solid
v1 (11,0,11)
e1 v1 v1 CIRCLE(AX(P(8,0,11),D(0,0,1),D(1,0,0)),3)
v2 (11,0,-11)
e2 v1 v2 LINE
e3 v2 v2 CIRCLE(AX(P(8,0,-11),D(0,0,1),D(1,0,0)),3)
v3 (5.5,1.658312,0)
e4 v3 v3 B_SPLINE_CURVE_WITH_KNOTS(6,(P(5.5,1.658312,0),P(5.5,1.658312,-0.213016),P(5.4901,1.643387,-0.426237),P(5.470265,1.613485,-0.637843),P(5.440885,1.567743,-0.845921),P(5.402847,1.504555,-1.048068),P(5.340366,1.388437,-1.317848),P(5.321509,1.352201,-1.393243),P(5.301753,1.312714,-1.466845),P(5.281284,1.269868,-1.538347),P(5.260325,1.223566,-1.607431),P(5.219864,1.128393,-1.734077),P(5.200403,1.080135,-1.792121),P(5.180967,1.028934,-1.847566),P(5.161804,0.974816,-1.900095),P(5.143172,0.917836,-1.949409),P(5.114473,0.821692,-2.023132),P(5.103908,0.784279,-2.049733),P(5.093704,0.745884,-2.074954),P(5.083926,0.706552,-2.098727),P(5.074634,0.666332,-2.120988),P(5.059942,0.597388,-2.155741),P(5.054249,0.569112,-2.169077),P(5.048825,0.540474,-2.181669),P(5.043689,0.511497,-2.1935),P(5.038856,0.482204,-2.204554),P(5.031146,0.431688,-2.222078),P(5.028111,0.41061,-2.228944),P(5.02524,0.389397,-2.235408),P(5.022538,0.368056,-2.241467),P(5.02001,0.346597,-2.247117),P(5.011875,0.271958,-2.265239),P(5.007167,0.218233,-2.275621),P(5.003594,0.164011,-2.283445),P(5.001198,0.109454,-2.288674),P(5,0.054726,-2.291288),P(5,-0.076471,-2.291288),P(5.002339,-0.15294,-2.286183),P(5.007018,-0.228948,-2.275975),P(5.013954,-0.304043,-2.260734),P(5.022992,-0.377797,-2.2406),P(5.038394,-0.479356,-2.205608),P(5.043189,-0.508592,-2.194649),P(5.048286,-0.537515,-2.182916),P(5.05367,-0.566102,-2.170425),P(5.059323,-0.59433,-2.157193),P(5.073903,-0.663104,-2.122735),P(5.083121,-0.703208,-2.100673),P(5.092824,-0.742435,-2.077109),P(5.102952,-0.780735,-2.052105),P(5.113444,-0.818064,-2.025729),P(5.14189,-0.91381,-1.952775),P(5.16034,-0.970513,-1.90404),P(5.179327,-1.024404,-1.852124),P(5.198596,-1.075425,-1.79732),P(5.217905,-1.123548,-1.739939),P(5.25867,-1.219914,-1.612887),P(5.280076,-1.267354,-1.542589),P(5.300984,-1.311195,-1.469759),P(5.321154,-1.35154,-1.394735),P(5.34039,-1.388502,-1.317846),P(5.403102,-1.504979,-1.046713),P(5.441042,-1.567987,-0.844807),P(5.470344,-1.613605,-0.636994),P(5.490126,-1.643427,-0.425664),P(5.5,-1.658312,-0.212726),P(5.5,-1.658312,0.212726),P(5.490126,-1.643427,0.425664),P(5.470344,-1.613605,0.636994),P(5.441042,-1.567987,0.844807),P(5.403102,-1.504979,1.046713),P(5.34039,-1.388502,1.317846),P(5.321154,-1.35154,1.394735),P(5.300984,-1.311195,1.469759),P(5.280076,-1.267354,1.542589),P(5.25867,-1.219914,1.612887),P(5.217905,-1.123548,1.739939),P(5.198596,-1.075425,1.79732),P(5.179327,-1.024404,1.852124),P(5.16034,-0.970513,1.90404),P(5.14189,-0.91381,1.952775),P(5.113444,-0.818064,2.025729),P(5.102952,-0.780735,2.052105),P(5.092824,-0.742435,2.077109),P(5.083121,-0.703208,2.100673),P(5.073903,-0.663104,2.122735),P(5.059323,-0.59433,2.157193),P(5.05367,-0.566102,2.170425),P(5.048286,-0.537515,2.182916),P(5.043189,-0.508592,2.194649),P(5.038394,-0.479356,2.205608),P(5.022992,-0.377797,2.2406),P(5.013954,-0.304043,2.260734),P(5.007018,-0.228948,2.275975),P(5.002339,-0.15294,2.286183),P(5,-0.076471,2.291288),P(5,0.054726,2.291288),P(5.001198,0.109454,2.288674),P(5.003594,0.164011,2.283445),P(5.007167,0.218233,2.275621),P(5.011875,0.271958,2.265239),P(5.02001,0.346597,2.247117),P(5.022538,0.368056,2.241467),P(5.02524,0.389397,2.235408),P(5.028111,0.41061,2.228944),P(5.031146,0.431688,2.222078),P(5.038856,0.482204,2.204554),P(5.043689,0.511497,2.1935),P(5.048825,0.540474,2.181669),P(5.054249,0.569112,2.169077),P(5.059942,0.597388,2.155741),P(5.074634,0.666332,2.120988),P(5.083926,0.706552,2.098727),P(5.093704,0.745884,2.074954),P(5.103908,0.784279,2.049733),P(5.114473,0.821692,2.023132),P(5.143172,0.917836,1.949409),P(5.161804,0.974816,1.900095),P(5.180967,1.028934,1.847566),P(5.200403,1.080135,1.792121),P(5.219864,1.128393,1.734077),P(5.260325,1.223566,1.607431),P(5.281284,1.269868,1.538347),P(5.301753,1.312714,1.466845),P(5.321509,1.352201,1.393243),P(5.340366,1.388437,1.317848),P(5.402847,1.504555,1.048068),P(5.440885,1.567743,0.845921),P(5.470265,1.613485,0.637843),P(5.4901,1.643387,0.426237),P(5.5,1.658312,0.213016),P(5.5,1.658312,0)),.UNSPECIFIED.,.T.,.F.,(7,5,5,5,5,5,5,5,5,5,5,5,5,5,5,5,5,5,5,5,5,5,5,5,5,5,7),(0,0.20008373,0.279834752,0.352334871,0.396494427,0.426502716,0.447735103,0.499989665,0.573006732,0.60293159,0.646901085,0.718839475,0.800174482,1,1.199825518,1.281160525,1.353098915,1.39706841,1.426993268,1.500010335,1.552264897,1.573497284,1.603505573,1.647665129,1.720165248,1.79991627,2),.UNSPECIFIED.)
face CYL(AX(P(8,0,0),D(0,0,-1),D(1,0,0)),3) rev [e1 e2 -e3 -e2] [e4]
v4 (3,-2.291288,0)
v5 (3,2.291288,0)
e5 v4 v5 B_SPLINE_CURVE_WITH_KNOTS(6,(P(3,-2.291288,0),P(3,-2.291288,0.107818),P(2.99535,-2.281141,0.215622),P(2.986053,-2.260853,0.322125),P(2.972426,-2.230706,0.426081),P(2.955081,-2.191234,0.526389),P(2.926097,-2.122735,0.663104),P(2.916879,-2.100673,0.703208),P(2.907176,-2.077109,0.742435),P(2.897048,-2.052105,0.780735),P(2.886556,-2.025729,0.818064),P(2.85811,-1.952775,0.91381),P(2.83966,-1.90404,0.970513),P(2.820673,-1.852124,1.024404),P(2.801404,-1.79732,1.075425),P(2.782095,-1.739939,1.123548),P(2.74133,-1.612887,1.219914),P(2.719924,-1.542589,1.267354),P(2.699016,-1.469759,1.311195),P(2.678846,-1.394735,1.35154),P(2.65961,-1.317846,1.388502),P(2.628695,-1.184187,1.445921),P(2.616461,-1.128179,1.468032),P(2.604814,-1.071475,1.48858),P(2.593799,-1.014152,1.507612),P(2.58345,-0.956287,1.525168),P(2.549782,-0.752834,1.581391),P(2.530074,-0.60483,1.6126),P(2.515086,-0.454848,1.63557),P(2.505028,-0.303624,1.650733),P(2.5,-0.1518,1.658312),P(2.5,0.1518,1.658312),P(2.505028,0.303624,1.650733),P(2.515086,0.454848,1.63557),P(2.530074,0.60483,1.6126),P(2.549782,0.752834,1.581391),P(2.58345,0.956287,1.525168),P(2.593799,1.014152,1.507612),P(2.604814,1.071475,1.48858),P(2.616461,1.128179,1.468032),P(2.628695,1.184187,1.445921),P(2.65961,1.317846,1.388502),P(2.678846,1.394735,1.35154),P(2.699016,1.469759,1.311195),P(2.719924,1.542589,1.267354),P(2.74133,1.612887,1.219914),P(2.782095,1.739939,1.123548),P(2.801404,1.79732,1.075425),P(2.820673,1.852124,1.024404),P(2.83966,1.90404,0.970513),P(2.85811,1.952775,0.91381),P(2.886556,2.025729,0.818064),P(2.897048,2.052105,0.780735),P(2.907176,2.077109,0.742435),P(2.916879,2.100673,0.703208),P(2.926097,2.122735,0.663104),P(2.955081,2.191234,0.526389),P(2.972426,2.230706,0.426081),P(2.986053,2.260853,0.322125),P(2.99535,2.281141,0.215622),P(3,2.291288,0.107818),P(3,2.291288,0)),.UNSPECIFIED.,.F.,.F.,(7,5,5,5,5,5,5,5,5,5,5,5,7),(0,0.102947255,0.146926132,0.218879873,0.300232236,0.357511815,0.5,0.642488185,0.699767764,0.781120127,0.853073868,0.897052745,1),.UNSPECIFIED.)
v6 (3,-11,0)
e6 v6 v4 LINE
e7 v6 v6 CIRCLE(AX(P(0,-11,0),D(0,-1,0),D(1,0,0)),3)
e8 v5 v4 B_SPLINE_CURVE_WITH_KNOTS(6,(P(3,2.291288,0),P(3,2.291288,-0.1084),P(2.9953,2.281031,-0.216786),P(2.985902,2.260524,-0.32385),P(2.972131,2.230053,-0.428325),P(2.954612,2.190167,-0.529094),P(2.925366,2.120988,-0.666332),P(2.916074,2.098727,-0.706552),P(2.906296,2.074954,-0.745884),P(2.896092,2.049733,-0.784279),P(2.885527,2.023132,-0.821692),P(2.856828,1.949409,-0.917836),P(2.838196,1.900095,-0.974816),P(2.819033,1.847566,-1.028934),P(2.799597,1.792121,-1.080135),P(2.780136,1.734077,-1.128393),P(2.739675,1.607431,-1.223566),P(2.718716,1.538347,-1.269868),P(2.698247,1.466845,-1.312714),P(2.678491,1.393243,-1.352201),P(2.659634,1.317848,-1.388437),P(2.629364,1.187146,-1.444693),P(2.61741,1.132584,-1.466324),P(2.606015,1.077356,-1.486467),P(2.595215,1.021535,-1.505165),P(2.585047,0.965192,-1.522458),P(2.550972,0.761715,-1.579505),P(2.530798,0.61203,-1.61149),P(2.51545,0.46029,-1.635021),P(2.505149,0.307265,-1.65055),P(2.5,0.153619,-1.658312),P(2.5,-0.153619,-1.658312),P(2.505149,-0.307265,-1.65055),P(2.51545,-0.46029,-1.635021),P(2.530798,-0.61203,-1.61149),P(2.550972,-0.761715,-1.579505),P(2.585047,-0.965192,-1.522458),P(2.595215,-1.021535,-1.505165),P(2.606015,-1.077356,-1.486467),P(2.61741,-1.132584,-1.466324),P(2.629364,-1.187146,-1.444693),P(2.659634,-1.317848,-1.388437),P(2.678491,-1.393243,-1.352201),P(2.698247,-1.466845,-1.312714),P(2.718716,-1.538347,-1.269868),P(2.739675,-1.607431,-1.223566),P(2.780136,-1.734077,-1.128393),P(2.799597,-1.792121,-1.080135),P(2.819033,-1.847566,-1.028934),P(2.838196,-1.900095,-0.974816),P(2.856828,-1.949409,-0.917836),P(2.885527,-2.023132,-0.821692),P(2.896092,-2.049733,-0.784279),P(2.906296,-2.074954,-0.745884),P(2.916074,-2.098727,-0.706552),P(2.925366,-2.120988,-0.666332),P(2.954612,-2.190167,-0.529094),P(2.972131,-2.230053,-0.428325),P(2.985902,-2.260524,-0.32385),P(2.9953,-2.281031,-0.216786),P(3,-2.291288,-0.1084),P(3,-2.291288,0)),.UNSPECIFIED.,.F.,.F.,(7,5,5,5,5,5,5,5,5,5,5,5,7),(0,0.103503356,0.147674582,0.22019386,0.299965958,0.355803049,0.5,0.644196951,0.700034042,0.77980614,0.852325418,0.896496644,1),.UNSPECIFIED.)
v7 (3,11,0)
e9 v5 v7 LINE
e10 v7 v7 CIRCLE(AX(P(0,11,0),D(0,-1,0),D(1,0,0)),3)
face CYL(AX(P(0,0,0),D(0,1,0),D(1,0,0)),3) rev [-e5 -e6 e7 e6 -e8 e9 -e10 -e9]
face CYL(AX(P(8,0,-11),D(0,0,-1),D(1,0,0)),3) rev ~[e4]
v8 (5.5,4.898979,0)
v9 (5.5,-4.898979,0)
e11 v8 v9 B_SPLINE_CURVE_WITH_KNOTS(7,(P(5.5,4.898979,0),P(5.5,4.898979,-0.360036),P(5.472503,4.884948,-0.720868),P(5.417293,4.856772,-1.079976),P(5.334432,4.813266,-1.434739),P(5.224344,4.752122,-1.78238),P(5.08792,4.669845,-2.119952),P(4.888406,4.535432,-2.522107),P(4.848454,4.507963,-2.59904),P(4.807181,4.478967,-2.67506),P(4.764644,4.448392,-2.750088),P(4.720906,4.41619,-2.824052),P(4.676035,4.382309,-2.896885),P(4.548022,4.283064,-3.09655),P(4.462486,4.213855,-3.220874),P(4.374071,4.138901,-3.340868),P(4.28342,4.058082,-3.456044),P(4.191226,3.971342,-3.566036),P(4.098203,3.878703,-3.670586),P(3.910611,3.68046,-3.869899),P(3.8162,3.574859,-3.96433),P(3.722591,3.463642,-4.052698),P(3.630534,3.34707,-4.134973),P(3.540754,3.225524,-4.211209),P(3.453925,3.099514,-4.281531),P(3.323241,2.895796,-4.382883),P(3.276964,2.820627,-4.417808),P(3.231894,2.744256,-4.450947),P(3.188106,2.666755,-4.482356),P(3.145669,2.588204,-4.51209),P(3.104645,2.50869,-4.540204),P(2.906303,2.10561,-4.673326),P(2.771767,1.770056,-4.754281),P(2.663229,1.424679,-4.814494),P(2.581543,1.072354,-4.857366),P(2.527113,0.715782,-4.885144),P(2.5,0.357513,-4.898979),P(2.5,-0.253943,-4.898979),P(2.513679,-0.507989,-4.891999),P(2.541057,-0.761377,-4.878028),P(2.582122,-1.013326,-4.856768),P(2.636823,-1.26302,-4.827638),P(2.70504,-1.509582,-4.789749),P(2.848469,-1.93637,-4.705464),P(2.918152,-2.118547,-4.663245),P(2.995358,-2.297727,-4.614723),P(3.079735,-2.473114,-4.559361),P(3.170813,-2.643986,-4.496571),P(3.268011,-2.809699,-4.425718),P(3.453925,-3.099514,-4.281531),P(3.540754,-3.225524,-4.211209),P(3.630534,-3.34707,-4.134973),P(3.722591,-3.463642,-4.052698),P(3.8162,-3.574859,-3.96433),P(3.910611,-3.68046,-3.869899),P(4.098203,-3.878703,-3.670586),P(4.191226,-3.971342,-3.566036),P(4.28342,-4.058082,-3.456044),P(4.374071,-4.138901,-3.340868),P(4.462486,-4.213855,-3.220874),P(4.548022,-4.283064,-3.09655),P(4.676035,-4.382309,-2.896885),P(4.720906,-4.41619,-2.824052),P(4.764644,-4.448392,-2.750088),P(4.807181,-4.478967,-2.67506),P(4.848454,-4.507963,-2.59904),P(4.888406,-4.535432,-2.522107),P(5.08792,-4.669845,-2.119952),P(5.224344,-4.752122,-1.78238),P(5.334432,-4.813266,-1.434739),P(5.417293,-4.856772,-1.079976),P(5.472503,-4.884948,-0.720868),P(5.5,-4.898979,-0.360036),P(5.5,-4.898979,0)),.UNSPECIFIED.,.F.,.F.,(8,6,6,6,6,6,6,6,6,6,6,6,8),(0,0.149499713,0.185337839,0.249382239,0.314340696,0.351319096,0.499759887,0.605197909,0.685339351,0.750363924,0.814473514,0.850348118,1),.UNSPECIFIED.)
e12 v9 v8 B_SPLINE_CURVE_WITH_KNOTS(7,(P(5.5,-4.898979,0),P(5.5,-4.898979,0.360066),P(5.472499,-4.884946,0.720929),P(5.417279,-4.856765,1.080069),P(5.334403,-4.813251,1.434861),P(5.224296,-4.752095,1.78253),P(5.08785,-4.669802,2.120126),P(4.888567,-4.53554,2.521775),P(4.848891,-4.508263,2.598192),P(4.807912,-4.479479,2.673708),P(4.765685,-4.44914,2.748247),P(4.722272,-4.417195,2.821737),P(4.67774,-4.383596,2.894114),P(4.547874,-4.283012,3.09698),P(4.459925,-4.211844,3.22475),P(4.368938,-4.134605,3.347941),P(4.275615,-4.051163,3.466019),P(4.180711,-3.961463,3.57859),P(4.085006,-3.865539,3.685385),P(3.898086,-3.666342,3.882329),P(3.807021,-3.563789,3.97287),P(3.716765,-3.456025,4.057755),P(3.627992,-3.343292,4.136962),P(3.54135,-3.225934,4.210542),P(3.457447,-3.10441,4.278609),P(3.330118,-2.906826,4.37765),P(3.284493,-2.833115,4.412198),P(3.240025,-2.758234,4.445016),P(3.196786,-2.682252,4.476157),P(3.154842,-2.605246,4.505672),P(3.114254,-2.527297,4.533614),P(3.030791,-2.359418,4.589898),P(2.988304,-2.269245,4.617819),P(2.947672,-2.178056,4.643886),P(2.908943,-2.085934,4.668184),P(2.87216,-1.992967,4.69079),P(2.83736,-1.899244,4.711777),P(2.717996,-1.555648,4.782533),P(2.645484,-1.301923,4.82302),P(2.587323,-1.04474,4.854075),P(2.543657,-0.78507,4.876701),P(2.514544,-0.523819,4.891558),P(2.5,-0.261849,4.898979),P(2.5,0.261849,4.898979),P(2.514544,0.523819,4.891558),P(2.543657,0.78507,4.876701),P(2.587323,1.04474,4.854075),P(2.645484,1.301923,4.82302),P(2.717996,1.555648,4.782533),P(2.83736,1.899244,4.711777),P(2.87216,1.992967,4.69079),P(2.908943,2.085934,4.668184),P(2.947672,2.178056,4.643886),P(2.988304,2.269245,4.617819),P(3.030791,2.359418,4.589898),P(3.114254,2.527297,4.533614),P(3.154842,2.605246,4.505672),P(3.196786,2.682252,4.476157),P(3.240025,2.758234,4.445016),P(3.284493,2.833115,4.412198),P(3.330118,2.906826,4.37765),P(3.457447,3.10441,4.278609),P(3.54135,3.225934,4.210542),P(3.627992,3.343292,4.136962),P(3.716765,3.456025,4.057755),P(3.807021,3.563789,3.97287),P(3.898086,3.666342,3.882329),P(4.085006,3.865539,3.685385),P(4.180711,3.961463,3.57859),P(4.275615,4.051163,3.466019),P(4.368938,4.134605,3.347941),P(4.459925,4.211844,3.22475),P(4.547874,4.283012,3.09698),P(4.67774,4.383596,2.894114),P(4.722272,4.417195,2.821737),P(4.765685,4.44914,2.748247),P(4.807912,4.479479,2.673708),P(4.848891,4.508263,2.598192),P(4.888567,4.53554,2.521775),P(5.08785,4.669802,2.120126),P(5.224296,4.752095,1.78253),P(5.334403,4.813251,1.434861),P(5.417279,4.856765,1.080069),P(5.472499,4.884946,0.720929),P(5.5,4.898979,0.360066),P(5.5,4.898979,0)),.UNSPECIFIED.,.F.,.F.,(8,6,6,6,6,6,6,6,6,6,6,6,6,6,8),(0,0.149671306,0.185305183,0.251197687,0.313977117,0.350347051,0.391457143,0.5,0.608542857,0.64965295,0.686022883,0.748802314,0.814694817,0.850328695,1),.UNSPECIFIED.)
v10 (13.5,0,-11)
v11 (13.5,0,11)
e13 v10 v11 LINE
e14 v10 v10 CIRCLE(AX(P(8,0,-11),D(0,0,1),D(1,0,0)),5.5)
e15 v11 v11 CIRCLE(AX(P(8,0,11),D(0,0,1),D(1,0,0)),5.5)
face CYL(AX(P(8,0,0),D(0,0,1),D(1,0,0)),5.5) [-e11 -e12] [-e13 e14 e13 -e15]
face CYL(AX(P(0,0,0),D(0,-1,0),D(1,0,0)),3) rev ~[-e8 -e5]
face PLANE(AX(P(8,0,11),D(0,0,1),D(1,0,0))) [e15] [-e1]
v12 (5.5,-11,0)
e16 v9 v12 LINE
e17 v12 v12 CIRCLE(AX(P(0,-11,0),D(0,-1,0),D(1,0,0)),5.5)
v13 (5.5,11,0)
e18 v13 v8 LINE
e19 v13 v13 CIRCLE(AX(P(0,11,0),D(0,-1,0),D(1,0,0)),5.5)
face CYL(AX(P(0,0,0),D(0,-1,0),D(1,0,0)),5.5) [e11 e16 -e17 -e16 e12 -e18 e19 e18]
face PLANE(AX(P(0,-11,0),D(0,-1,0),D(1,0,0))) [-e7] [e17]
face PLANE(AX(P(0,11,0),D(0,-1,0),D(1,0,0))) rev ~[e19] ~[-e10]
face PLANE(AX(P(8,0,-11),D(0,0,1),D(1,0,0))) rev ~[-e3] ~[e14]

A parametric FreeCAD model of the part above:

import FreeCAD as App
import Part
import Sketcher
from FreeCAD import Vector

doc = App.newDocument("Part")
body = doc.addObject("PartDesign::Body", "Body")

# Sketch on XZ plane
sketch1 = body.newObject("Sketcher::SketchObject", "Sketch")
sketch1.AttachmentSupport = (doc.getObject("XZ_Plane"), [""])
sketch1.MapMode = "FlatFace"
sketch1.addGeometry([
    Part.Circle(Vector(0, 0, 0), Vector(0, 0, 1), 5.5),
    Part.Circle(Vector(0, 0, 0), Vector(0, 0, 1), 3),
], False)
sketch1.addConstraint([
    Sketcher.Constraint("Coincident", 0, 3, -1, 1),
    Sketcher.Constraint("Coincident", 1, 3, -1, 1),
    Sketcher.Constraint("Diameter", 0, 11.0),
    Sketcher.Constraint("Diameter", 1, 6.0),
])
pad1 = body.newObject("PartDesign::Pad", "Pad")
pad1.Profile = sketch1
pad1.Length = 22
pad1.Midplane = True

# Sketch on XY plane
sketch2 = body.newObject("Sketcher::SketchObject", "Sketch001")
sketch2.AttachmentSupport = (doc.getObject("XY_Plane"), [""])
sketch2.MapMode = "FlatFace"
sketch2.addGeometry([
    Part.Circle(Vector(8, 0, 0), Vector(0, 0, 1), 5.5),
    Part.Circle(Vector(8, 0, 0), Vector(0, 0, 1), 3),
], False)
sketch2.addConstraint([
    Sketcher.Constraint("Coincident", 1, 3, 0, 3),
    Sketcher.Constraint("PointOnObject", 0, 3, -1),
    Sketcher.Constraint("Diameter", 0, 11.0),
    Sketcher.Constraint("Diameter", 1, 6.0),
    Sketcher.Constraint("DistanceX", -1, 1, 0, 3, 8.0),
])
pad2 = body.newObject("PartDesign::Pad", "Pad001")
pad2.Profile = sketch2
pad2.Length = 22
pad2.Midplane = True

# Sketch on XZ plane
sketch3 = body.newObject("Sketcher::SketchObject", "Sketch002")
sketch3.AttachmentSupport = (doc.getObject("XZ_Plane"), [""])
sketch3.MapMode = "FlatFace"
sketch3.addGeometry(Part.Circle(Vector(0, 0, 0), Vector(0, 0, 1), 3), False)
sketch3.addConstraint([
    Sketcher.Constraint("Coincident", 0, 3, -1, 1),
    Sketcher.Constraint("Diameter", 0, 6.0),
])
pocket1 = body.newObject("PartDesign::Pocket", "Pocket")
pocket1.Profile = sketch3
pocket1.Length = 25
pocket1.Midplane = True

# Sketch on XY plane
sketch4 = body.newObject("Sketcher::SketchObject", "Sketch003")
sketch4.AttachmentSupport = (doc.getObject("XY_Plane"), [""])
sketch4.MapMode = "FlatFace"
sketch4.AttachmentOffset = App.Placement(Vector(0, 0, -11), App.Rotation())
sketch4.addGeometry(Part.Circle(Vector(8, 0, 0), Vector(0, 0, 1), 3), False)
sketch4.addConstraint([
    Sketcher.Constraint("PointOnObject", 0, 3, -1),
    Sketcher.Constraint("Diameter", 0, 6.0),
    Sketcher.Constraint("DistanceX", -1, 1, 0, 3, 8.0),
])
pocket2 = body.newObject("PartDesign::Pocket", "Pocket001")
pocket2.Profile = sketch4
pocket2.Type = "ThroughAll"
pocket2.Reversed = True

doc.recompute()
